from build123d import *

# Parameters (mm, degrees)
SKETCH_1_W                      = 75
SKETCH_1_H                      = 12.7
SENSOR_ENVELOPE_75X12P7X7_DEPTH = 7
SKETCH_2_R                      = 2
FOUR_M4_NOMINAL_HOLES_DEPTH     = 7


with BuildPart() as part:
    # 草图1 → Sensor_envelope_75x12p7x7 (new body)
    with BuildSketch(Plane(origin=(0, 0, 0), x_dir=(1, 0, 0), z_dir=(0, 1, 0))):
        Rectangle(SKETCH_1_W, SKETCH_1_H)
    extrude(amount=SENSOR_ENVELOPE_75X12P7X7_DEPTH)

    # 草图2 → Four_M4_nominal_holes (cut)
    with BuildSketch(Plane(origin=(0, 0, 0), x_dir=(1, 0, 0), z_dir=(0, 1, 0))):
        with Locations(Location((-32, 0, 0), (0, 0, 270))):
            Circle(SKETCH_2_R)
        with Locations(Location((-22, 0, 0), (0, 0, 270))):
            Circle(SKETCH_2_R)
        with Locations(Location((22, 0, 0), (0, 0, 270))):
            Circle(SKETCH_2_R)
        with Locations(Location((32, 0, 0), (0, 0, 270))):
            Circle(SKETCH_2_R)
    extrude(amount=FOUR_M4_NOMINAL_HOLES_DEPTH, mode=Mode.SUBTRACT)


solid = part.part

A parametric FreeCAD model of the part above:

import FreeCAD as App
import Part
import Sketcher

V = App.Vector


def add_polygon(sketch, points):
    """Adds a closed chain of lines whose ends are joined by coincident constraints."""
    first, n = sketch.GeometryCount, len(points)
    for a, b in zip(points, points[1:] + points[:1]):
        sketch.addGeometry(Part.LineSegment(App.Vector(*a, 0), App.Vector(*b, 0)), False)
    for i in range(n):
        sketch.addConstraint(Sketcher.Constraint("Coincident", first + i, 2, first + (i + 1) % n, 1))

doc = App.newDocument("Part")
body = doc.addObject("PartDesign::Body", "Body")

# Sketch on XZ plane
sketch1 = body.newObject("Sketcher::SketchObject", "Sketch")
sketch1.AttachmentSupport = (doc.getObject("XZ_Plane"), [""])
sketch1.MapMode = "FlatFace"
add_polygon(sketch1, [(-38, -6), (-38, 6), (38, 6), (38, -6)])  # lines 0-3
sketch1.addConstraint([
    Sketcher.Constraint("Vertical", 0),
    Sketcher.Constraint("Horizontal", 1),
    Sketcher.Constraint("Vertical", 2),
    Sketcher.Constraint("Horizontal", 3),
    Sketcher.Constraint("Symmetric", 0, 2, 2, 2, -1, 1),
    Sketcher.Constraint("DistanceX", 1, 1, 1, 2, 75.0),
    Sketcher.Constraint("DistanceY", 0, 1, 0, 2, 12.7),
])
pad1 = body.newObject("PartDesign::Pad", "Pad")
pad1.Profile = sketch1
pad1.Length = 7
pad1.Reversed = True

# Sketch on XZ plane
sketch2 = body.newObject("Sketcher::SketchObject", "Sketch001")
sketch2.AttachmentSupport = (doc.getObject("XZ_Plane"), [""])
sketch2.MapMode = "FlatFace"
sketch2.addGeometry([
    Part.Circle(V(-32, 0, 0), V(0, 0, 1), 2),
    Part.Circle(V(-22, 0, 0), V(0, 0, 1), 2),
    Part.Circle(V(22, 0, 0), V(0, 0, 1), 2),
    Part.Circle(V(32, 0, 0), V(0, 0, 1), 2),
], False)
sketch2.addConstraint([
    Sketcher.Constraint("Equal", 0, 1),
    Sketcher.Constraint("Equal", 1, 2),
    Sketcher.Constraint("Equal", 2, 3),
    Sketcher.Constraint("Symmetric", 1, 3, 2, 3, -1, 1),
    Sketcher.Constraint("Symmetric", 0, 3, 3, 3, -1, 1),
    Sketcher.Constraint("PointOnObject", 0, 3, -1),
    Sketcher.Constraint("PointOnObject", 1, 3, -1),
    Sketcher.Constraint("Diameter", 0, 4.0),
    Sketcher.Constraint("DistanceX", 0, 3, -1, 1, 32.0),
    Sketcher.Constraint("DistanceX", 1, 3, -1, 1, 22.0),
])
pocket1 = body.newObject("PartDesign::Pocket", "Pocket")
pocket1.Profile = sketch2
pocket1.Length = 7

doc.recompute()
